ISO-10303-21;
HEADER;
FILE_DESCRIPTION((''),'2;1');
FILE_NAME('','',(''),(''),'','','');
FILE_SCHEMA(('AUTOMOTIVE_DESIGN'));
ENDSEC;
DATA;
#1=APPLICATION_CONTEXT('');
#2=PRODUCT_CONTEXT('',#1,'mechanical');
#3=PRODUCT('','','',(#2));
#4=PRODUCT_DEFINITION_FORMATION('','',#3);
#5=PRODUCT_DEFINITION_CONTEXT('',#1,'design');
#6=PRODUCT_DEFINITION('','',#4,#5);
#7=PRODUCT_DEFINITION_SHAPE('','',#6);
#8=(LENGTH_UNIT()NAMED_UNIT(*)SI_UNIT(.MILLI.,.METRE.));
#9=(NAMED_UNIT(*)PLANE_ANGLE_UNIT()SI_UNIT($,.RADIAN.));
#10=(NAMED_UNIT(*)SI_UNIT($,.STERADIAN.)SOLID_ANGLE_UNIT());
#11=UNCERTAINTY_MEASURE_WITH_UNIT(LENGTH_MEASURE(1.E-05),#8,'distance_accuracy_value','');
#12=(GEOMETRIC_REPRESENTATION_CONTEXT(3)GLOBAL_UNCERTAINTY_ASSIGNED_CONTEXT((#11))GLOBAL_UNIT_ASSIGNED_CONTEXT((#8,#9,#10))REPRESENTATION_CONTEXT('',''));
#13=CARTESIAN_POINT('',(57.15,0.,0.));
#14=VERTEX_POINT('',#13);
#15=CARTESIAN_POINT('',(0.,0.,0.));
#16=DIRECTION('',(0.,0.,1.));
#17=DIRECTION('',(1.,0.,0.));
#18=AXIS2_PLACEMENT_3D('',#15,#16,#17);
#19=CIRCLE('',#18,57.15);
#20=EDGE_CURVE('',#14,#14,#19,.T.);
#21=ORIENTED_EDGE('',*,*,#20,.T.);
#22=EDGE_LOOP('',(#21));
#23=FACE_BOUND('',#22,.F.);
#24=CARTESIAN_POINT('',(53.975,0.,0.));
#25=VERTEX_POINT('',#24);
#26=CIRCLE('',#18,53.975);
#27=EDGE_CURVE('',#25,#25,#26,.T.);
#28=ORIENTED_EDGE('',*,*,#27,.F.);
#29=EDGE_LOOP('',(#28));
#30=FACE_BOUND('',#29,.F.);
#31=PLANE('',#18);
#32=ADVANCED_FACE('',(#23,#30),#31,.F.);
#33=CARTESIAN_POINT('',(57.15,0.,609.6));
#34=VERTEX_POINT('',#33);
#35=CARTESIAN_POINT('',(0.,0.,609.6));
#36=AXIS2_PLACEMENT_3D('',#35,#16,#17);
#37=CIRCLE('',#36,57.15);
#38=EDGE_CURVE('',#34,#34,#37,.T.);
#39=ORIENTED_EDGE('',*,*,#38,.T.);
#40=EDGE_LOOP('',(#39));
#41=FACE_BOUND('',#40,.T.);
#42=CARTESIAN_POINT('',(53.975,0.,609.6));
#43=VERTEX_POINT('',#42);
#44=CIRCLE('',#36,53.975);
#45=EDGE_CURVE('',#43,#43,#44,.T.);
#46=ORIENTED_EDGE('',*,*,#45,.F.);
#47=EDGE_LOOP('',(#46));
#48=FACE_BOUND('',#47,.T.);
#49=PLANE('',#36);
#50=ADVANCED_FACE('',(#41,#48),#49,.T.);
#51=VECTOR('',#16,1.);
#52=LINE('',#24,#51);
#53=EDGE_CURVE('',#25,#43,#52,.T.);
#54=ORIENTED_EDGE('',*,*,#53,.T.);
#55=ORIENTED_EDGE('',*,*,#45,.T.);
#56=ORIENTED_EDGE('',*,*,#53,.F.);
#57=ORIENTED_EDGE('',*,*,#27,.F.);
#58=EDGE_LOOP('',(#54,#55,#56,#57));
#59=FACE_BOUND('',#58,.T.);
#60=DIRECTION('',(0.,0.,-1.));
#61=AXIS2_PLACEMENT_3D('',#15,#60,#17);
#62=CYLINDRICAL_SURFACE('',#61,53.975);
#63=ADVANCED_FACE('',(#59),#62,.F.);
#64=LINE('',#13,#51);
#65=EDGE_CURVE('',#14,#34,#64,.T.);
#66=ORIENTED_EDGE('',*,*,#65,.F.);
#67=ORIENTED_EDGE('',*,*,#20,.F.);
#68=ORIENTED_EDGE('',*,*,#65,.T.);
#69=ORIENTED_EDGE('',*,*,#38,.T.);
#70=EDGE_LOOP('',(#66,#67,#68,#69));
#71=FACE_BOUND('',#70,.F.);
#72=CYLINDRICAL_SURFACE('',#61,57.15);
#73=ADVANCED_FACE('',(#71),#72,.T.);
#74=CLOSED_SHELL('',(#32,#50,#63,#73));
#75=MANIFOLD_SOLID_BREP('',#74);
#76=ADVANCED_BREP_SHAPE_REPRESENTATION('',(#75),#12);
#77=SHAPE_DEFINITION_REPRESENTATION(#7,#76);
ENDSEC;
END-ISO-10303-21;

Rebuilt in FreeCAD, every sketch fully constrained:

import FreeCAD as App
import Part
import Sketcher

V = App.Vector
Q = App.Units.Quantity

doc = App.newDocument("Part")
body = doc.addObject("PartDesign::Body", "Body")

# Sketch on XY plane
sketch1 = body.newObject("Sketcher::SketchObject", "Sketch")
sketch1.AttachmentSupport = (doc.getObject("XY_Plane"), [""])
sketch1.MapMode = "FlatFace"
sketch1.addGeometry([
    Part.Circle(V(0, 0, 0), V(0, 0, 1), 57),
    Part.Circle(V(0, 0, 0), V(0, 0, 1), 54),
], False)
sketch1.addConstraint([
    Sketcher.Constraint("Coincident", 0, 3, -1, 1),
    Sketcher.Constraint("Coincident", 1, 3, -1, 1),
    Sketcher.Constraint("Diameter", 0, Q("4.5 in")),
    Sketcher.Constraint("Diameter", 1, Q("4.25 in")),
])
pad1 = body.newObject("PartDesign::Pad", "Pad")
pad1.Profile = sketch1
pad1.Length = Q("24 in")

doc.recompute()
